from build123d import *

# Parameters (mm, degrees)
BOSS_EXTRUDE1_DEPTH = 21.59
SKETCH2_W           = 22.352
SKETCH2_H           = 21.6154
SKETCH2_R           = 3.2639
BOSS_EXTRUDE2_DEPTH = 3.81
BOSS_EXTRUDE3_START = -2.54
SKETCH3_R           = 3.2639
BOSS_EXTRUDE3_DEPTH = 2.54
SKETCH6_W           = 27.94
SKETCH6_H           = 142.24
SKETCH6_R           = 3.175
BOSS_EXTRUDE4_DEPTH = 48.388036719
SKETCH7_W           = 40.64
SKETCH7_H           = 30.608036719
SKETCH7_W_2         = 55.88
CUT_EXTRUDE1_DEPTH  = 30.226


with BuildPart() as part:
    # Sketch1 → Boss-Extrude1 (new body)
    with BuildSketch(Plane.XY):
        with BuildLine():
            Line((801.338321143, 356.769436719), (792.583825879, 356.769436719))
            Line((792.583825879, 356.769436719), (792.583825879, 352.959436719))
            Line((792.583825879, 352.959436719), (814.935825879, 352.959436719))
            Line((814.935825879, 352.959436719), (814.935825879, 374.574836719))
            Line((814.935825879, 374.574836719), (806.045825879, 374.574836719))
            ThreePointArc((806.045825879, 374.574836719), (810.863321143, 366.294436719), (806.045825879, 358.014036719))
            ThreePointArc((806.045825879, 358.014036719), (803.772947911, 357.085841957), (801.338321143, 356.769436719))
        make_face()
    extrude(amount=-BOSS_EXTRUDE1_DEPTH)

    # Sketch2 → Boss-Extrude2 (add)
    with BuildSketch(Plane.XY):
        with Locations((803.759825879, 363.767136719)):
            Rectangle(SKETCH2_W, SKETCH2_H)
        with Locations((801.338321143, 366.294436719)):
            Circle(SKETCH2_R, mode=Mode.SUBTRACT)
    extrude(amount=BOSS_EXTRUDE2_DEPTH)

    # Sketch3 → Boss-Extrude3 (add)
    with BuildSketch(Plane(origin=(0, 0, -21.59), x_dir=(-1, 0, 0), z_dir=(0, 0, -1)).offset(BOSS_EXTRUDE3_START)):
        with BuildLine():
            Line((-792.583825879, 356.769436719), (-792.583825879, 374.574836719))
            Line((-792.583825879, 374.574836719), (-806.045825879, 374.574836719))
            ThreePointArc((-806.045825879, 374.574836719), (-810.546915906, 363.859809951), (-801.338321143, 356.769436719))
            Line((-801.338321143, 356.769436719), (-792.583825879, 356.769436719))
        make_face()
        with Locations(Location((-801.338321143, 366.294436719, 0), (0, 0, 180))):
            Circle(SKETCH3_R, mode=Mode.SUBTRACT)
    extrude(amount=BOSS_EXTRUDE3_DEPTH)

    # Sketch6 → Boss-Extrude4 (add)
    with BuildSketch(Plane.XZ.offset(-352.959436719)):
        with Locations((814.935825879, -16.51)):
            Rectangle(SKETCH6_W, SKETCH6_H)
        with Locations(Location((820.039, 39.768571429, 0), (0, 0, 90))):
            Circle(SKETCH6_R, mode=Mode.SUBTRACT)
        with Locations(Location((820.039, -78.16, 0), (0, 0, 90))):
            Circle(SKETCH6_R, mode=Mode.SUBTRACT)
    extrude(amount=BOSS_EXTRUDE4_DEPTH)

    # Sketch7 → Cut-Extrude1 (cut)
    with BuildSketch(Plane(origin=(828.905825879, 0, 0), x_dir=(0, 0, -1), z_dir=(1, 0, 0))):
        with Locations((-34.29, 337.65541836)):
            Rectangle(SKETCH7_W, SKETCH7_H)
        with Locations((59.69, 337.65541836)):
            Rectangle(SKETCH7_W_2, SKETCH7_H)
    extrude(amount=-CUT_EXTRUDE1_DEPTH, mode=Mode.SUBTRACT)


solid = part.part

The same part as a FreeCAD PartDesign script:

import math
import FreeCAD as App
import Part
import Sketcher
from FreeCAD import Vector
Q = App.Units.Quantity


def add_polygon(sketch, points):
    """Adds a closed chain of lines whose ends are joined by coincident constraints."""
    first, n = sketch.GeometryCount, len(points)
    for a, b in zip(points, points[1:] + points[:1]):
        sketch.addGeometry(Part.LineSegment(App.Vector(*a, 0), App.Vector(*b, 0)), False)
    for i in range(n):
        sketch.addConstraint(Sketcher.Constraint("Coincident", first + i, 2, first + (i + 1) % n, 1))

doc = App.newDocument("Part")
body = doc.addObject("PartDesign::Body", "Body")

sketch1 = body.newObject("Sketcher::SketchObject", "Sketch")
sketch1.AttachmentSupport = (doc.getObject("XY_Plane"), [""])
sketch1.MapMode = "FlatFace"
sketch1.addGeometry([
    Part.LineSegment(Vector(801.3, 356.8, 0), Vector(792.6, 356.8, 0)),
    Part.LineSegment(Vector(792.6, 356.8, 0), Vector(792.6, 353, 0)),
    Part.LineSegment(Vector(792.6, 353, 0), Vector(814.9, 353, 0)),
    Part.LineSegment(Vector(814.9, 353, 0), Vector(814.9, 374.6, 0)),
    Part.LineSegment(Vector(814.9, 374.6, 0), Vector(806, 374.6, 0)),
    Part.ArcOfCircle(Part.Circle(Vector(801.3, 366.3, 0), Vector(0, 0, 1), 9.5), math.radians(-60), math.radians(60)),
    Part.ArcOfCircle(Part.Circle(Vector(801.3, 366.3, 0), Vector(0, 0, 1), 9.5), math.radians(-90), math.radians(-60)),
], False)
sketch1.addConstraint([
    Sketcher.Constraint("Coincident", 0, 2, 1, 1),
    Sketcher.Constraint("Coincident", 1, 2, 2, 1),
    Sketcher.Constraint("Coincident", 2, 2, 3, 1),
    Sketcher.Constraint("Coincident", 3, 2, 4, 1),
    Sketcher.Constraint("Coincident", 4, 2, 5, 2),
    Sketcher.Constraint("Tangent", 5, 1, 6, 2),
    Sketcher.Constraint("Tangent", 6, 1, 0, 1),
    Sketcher.Constraint("Horizontal", 0),
    Sketcher.Constraint("Vertical", 1),
    Sketcher.Constraint("Horizontal", 2),
    Sketcher.Constraint("Vertical", 3),
    Sketcher.Constraint("Horizontal", 4),
    Sketcher.Constraint("Equal", 5, 6),
    Sketcher.Constraint("Vertical", 4, 2, 5, 1),
    Sketcher.Constraint("Radius", 5, Q("0.375 in")),
    Sketcher.Constraint("DistanceX", 2, 1, 2, 2, Q("0.88 in")),
    Sketcher.Constraint("DistanceX", 4, 2, 4, 1, Q("0.35 in")),
    Sketcher.Constraint("DistanceY", 1, 2, 1, 1, Q("0.15 in")),
    Sketcher.Constraint("DistanceY", 3, 1, 3, 2, Q("0.851 in")),
    Sketcher.Constraint("DistanceX", -1, 1, 5, 3, 801.338321),
    Sketcher.Constraint("DistanceY", -1, 1, 5, 3, 366.294437),
])
pad1 = body.newObject("PartDesign::Pad", "Pad")
pad1.Profile = sketch1
pad1.Length = Q("0.85 in")
pad1.Reversed = True

sketch2 = body.newObject("Sketcher::SketchObject", "Sketch001")
sketch2.AttachmentSupport = (doc.getObject("XY_Plane"), [""])
sketch2.MapMode = "FlatFace"
add_polygon(sketch2, [(792.6, 374.6), (792.6, 353), (814.9, 353), (814.9, 374.6)])
sketch2.addGeometry(Part.Circle(Vector(801.3, 366.3, 0), Vector(0, 0, 1), 3.3), False)
sketch2.addConstraint([
    Sketcher.Constraint("Vertical", 0),
    Sketcher.Constraint("Horizontal", 1),
    Sketcher.Constraint("Vertical", 2),
    Sketcher.Constraint("Horizontal", 3),
    Sketcher.Constraint("Diameter", 4, Q("0.257 in")),
    Sketcher.Constraint("DistanceX", 1, 1, 1, 2, Q("0.88 in")),
    Sketcher.Constraint("DistanceY", 0, 2, 0, 1, Q("0.851 in")),
    Sketcher.Constraint("DistanceY", 0, 2, 4, 3, Q("0.525 in")),
    Sketcher.Constraint("DistanceX", -1, 1, 4, 3, 801.338321),
    Sketcher.Constraint("DistanceY", -1, 1, 4, 3, 366.294437),
    Sketcher.Constraint("DistanceX", -1, 1, 0, 2, 792.583826),
])
pad2 = body.newObject("PartDesign::Pad", "Pad001")
pad2.Profile = sketch2
pad2.Length = Q("0.15 in")

sketch3 = body.newObject("Sketcher::SketchObject", "Sketch002")
sketch3.AttachmentSupport = (doc.getObject("XY_Plane"), [""])
sketch3.MapMode = "FlatFace"
sketch3.AttachmentOffset = App.Placement(Vector(0, 0, -0.75 * 25.4), App.Rotation())
sketch3.addGeometry([
    Part.LineSegment(Vector(792.6, 356.8, 0), Vector(792.6, 374.6, 0)),
    Part.LineSegment(Vector(792.6, 374.6, 0), Vector(806, 374.6, 0)),
    Part.ArcOfCircle(Part.Circle(Vector(801.3, 366.3, 0), Vector(0, 0, 1), 9.5), math.radians(-90), math.radians(60)),
    Part.LineSegment(Vector(801.3, 356.8, 0), Vector(792.6, 356.8, 0)),
    Part.Circle(Vector(801.3, 366.3, 0), Vector(0, 0, 1), 3.3),
], False)
sketch3.addConstraint([
    Sketcher.Constraint("Coincident", 0, 2, 1, 1),
    Sketcher.Constraint("Coincident", 1, 2, 2, 2),
    Sketcher.Constraint("Tangent", 2, 1, 3, 1),
    Sketcher.Constraint("Coincident", 3, 2, 0, 1),
    Sketcher.Constraint("Vertical", 0),
    Sketcher.Constraint("Horizontal", 1),
    Sketcher.Constraint("Horizontal", 3),
    Sketcher.Constraint("Coincident", 4, 3, 2, 3),
    Sketcher.Constraint("Diameter", 4, Q("0.257 in")),
    Sketcher.Constraint("Radius", 2, Q("0.375 in")),
    Sketcher.Constraint("DistanceX", 1, 1, 1, 2, Q("0.53 in")),
    Sketcher.Constraint("DistanceY", 0, 1, 0, 2, Q("0.701 in")),
    Sketcher.Constraint("DistanceX", -1, 1, 2, 3, 801.338321),
    Sketcher.Constraint("DistanceY", -1, 1, 2, 3, 366.294437),
])
pad3 = body.newObject("PartDesign::Pad", "Pad002")
pad3.Profile = sketch3
pad3.Length = Q("0.1 in")
pad3.Reversed = True

sketch4 = body.newObject("Sketcher::SketchObject", "Sketch003")
sketch4.AttachmentSupport = (doc.getObject("XZ_Plane"), [""])
sketch4.MapMode = "FlatFace"
sketch4.AttachmentOffset = App.Placement(Vector(0, 0, -352.959437), App.Rotation())
add_polygon(sketch4, [(801, 54.6), (801, -87.6), (828.9, -87.6), (828.9, 54.6)])
sketch4.addGeometry(Part.Circle(Vector(820, -78.2, 0), Vector(0, 0, 1), 3.2), False)
sketch4.addGeometry(Part.Circle(Vector(820, 39.8, 0), Vector(0, 0, 1), 3.2), False)
sketch4.addConstraint([
    Sketcher.Constraint("Vertical", 0),
    Sketcher.Constraint("Horizontal", 1),
    Sketcher.Constraint("Vertical", 2),
    Sketcher.Constraint("Horizontal", 3),
    Sketcher.Constraint("Equal", 4, 5),
    Sketcher.Constraint("Vertical", 4, 3, 5, 3),
    Sketcher.Constraint("Diameter", 4, Q("0.25 in")),
    Sketcher.Constraint("DistanceX", 1, 1, 1, 2, Q("1.1 in")),
    Sketcher.Constraint("DistanceY", 0, 2, 0, 1, Q("5.6 in")),
    Sketcher.Constraint("DistanceY", 0, 2, -1, 1, Q("3.45 in")),
    Sketcher.Constraint("DistanceX", -1, 1, 4, 3, Q("32.285 in")),
    Sketcher.Constraint("DistanceY", 4, 3, -1, 1, 78.16),
    Sketcher.Constraint("DistanceY", -1, 1, 5, 3, 39.768571),
    Sketcher.Constraint("DistanceX", -1, 1, 0, 2, 800.965826),
])
pad4 = body.newObject("PartDesign::Pad", "Pad003")
pad4.Profile = sketch4
pad4.Length = 48.388037

sketch5 = body.newObject("Sketcher::SketchObject", "Sketch004")
sketch5.AttachmentSupport = (doc.getObject("YZ_Plane"), [""])
sketch5.MapMode = "FlatFace"
sketch5.AttachmentOffset = App.Placement(Vector(0, 0, 828.905826), App.Rotation())
add_polygon(sketch5, [(353, 55), (322, 55), (322, 14), (353, 14)])
add_polygon(sketch5, [(353, -32), (322, -32), (322, -88), (353, -88)])
sketch5.addConstraint([
    Sketcher.Constraint("Horizontal", 0),
    Sketcher.Constraint("Vertical", 1),
    Sketcher.Constraint("Horizontal", 2),
    Sketcher.Constraint("Vertical", 3),
    Sketcher.Constraint("Horizontal", 4),
    Sketcher.Constraint("Vertical", 5),
    Sketcher.Constraint("Horizontal", 6),
    Sketcher.Constraint("Vertical", 7),
    Sketcher.Constraint("Vertical", 1, 2, 4, 2),
    Sketcher.Constraint("Vertical", 3, 2, 6, 2),
    Sketcher.Constraint("DistanceY", 1, 2, 1, 1, Q("1.6 in")),
    Sketcher.Constraint("DistanceY", 5, 2, 5, 1, Q("2.2 in")),
    Sketcher.Constraint("DistanceY", 5, 2, 1, 2, Q("4 in")),
    Sketcher.Constraint("DistanceY", -1, 1, 0, 2, Q("2.15 in")),
    Sketcher.Constraint("DistanceX", -1, 1, 0, 2, Q("12.691 in")),
    Sketcher.Constraint("DistanceX", 0, 2, 0, 1, 30.608037),
])
pocket1 = body.newObject("PartDesign::Pocket", "Pocket")
pocket1.Profile = sketch5
pocket1.Length = Q("1.19 in")

doc.recompute()
